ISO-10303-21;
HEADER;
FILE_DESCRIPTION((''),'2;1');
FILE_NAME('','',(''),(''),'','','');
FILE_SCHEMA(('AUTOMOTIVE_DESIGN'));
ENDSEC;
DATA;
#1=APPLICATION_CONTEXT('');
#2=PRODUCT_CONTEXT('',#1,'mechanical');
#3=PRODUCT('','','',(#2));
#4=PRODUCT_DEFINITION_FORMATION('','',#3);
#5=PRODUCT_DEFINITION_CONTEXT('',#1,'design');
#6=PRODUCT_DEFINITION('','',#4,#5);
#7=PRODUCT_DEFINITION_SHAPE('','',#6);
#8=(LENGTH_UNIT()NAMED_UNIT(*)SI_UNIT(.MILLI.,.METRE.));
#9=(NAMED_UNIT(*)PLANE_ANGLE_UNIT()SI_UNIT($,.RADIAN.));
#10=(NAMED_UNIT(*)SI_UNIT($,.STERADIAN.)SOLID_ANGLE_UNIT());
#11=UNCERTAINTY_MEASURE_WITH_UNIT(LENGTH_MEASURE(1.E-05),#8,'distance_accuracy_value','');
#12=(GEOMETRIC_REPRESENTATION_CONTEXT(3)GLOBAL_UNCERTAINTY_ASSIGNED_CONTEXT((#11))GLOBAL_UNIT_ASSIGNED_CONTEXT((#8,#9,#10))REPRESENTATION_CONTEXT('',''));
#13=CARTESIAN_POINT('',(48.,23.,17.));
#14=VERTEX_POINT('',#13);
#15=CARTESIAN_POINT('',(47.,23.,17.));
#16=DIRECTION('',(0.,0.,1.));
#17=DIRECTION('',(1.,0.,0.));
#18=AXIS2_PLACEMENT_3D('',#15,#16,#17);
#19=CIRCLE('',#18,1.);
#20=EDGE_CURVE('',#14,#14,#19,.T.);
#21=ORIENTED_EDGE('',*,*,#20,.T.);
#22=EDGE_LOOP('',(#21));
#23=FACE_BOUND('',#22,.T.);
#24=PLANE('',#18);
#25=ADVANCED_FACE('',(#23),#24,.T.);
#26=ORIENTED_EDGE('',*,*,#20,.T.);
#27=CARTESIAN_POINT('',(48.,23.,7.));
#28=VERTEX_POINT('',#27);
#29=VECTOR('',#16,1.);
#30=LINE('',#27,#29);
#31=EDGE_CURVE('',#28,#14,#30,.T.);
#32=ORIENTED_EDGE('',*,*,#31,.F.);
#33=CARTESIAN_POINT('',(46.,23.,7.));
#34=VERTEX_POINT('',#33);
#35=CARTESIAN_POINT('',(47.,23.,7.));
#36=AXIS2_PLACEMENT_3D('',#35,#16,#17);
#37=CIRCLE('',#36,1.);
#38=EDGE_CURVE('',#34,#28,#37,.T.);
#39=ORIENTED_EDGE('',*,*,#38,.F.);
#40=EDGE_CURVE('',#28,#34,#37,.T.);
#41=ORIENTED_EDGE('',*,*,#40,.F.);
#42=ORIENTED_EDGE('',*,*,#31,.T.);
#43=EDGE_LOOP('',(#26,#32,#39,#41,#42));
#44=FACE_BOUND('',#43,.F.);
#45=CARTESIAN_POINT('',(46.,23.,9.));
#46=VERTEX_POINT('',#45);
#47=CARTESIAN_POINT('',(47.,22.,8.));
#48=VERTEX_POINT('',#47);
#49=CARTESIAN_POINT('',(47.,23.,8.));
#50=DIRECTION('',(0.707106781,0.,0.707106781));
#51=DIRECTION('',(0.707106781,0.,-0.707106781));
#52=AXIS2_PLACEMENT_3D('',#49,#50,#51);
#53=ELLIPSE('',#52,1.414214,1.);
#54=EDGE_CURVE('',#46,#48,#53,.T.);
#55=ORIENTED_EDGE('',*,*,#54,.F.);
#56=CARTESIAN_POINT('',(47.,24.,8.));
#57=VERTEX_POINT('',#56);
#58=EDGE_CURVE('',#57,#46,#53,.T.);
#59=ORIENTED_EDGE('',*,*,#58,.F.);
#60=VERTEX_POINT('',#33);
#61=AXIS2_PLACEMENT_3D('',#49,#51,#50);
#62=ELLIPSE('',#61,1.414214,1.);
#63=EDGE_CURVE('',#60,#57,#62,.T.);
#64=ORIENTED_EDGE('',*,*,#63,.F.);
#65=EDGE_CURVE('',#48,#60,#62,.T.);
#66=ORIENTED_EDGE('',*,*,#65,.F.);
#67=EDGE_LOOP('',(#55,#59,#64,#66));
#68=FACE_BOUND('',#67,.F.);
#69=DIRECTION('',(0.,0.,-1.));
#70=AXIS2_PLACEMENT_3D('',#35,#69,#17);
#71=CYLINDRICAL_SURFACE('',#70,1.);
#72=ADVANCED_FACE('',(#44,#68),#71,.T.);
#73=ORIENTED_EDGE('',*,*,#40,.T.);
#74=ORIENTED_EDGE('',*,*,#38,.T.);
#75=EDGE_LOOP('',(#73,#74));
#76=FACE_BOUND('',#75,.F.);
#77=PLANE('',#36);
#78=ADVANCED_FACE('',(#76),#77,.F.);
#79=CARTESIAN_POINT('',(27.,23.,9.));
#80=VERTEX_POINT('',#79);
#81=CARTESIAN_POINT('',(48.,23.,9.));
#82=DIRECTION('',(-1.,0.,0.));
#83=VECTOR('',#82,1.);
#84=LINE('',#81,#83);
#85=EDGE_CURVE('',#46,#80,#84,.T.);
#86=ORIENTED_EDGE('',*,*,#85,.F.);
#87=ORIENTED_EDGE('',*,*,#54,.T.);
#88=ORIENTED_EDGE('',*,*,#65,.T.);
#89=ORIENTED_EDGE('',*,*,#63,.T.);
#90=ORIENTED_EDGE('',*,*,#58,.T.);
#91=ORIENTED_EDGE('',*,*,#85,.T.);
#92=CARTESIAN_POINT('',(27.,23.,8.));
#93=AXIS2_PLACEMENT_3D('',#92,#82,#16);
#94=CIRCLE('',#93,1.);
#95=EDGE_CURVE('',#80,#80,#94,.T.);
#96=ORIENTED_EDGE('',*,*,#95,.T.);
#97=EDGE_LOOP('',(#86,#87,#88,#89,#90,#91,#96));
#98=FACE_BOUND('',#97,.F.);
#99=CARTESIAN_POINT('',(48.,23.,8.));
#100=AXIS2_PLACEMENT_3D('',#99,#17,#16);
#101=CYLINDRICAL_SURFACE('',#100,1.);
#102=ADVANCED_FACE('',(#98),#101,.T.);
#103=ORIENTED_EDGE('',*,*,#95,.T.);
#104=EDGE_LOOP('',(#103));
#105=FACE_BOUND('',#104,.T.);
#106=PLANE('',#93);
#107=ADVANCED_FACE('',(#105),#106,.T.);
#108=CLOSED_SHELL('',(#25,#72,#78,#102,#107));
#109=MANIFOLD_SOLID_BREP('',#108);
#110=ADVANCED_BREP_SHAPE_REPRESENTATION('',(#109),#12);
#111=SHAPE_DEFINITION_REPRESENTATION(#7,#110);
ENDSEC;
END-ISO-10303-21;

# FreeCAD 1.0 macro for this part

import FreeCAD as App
import Part
import Sketcher

V = App.Vector
Q = App.Units.Quantity


def add_polygon(sketch, points):
    """Adds a closed chain of lines whose ends are joined by coincident constraints."""
    first, n = sketch.GeometryCount, len(points)
    for a, b in zip(points, points[1:] + points[:1]):
        sketch.addGeometry(Part.LineSegment(App.Vector(*a, 0), App.Vector(*b, 0)), False)
    for i in range(n):
        sketch.addConstraint(Sketcher.Constraint("Coincident", first + i, 2, first + (i + 1) % n, 1))

doc = App.newDocument("Part")
body = doc.addObject("PartDesign::Body", "Body")

sketch1 = body.newObject("Sketcher::SketchObject", "Sketch")
sketch1.AttachmentSupport = (doc.getObject("XY_Plane"), [""])
sketch1.MapMode = "FlatFace"
add_polygon(sketch1, [(47, 24), (47, 14), (57, 14), (57, 24)])
sketch1.addConstraint(Sketcher.Constraint("Vertical", 0))
sketch1.addConstraint(Sketcher.Constraint("Horizontal", 1))
sketch1.addConstraint(Sketcher.Constraint("Vertical", 2))
sketch1.addConstraint(Sketcher.Constraint("Horizontal", 3))
sketch1.addConstraint(Sketcher.Constraint("Equal", 3, 0))
sketch1.addConstraint(Sketcher.Constraint("DistanceX", 1, 1, 1, 2, Q("10 mm")))
sketch1.addConstraint(Sketcher.Constraint("DistanceX", -1, 1, 0, 2, Q("47 mm")))
sketch1.addConstraint(Sketcher.Constraint("DistanceY", -1, 1, 0, 2, Q("14 mm")))
pad1 = body.newObject("PartDesign::Pad", "Pad")
pad1.Profile = sketch1
pad1.Length = 10
body2 = doc.addObject("PartDesign::Body", "Body001")

sketch2 = body2.newObject("Sketcher::SketchObject", "Sketch001")
sketch2.AttachmentSupport = (doc.getObject("XY_Plane001"), [""])
sketch2.MapMode = "FlatFace"
sketch2.AttachmentOffset = App.Placement(V(0, 0, 7), App.Rotation())
sketch2.addGeometry(Part.Circle(V(47, 23, 0), V(0, 0, 1), 1), False)
sketch2.addConstraint(Sketcher.Constraint("Diameter", 0, Q("2 mm")))
sketch2.addConstraint(Sketcher.Constraint("DistanceX", -1, 1, 0, 3, Q("47 mm")))
sketch2.addConstraint(Sketcher.Constraint("DistanceY", -1, 1, 0, 3, Q("23 mm")))
pad2 = body2.newObject("PartDesign::Pad", "Pad001")
pad2.Profile = sketch2
pad2.Length = 9
body3 = doc.addObject("PartDesign::Body", "Body002")
body3.AllowCompound = True

sketch3 = body3.newObject("Sketcher::SketchObject", "Sketch002")
sketch3.AttachmentSupport = (doc.getObject("YZ_Plane002"), [""])
sketch3.MapMode = "FlatFace"
sketch3.AttachmentOffset = App.Placement(V(0, 0, 48), App.Rotation())
sketch3.addGeometry(Part.Circle(V(23, 8, 0), V(0, 0, 1), 1), False)
sketch3.addConstraint(Sketcher.Constraint("Diameter", 0, Q("2 mm")))
sketch3.addConstraint(Sketcher.Constraint("DistanceX", -1, 1, 0, 3, Q("23 mm")))
sketch3.addConstraint(Sketcher.Constraint("DistanceY", -1, 1, 0, 3, Q("8 mm")))
pad3 = body3.newObject("PartDesign::Pad", "Pad002")
pad3.Profile = sketch3
pad3.Length = 21
pad3.Reversed = True
doc.recompute()

boolean = body3.newObject("PartDesign::Boolean", "Boolean")
boolean.Type = "Cut"
boolean.addObjects([body2])
doc.recompute()

boolean2 = body3.newObject("PartDesign::Boolean", "Boolean001")
boolean2.Type = "Cut"
boolean2.addObjects([body])
body4 = doc.addObject("PartDesign::Body", "Body003")

sketch4 = body4.newObject("Sketcher::SketchObject", "Sketch003")
sketch4.AttachmentSupport = (doc.getObject("XY_Plane003"), [""])
sketch4.MapMode = "FlatFace"
sketch4.AttachmentOffset = App.Placement(V(0, 0, 7), App.Rotation())
sketch4.addGeometry(Part.Circle(V(47, 23, 0), V(0, 0, 1), 1), False)
sketch4.addConstraint(Sketcher.Constraint("Diameter", 0, Q("2 mm")))
sketch4.addConstraint(Sketcher.Constraint("DistanceX", -1, 1, 0, 3, Q("47 mm")))
sketch4.addConstraint(Sketcher.Constraint("DistanceY", -1, 1, 0, 3, Q("23 mm")))
pad4 = body4.newObject("PartDesign::Pad", "Pad003")
pad4.Profile = sketch4
pad4.Length = 10
doc.recompute()

boolean3 = body4.newObject("PartDesign::Boolean", "Boolean002")
boolean3.Type = "Fuse"
boolean3.addObjects([body3])

doc.recompute()
